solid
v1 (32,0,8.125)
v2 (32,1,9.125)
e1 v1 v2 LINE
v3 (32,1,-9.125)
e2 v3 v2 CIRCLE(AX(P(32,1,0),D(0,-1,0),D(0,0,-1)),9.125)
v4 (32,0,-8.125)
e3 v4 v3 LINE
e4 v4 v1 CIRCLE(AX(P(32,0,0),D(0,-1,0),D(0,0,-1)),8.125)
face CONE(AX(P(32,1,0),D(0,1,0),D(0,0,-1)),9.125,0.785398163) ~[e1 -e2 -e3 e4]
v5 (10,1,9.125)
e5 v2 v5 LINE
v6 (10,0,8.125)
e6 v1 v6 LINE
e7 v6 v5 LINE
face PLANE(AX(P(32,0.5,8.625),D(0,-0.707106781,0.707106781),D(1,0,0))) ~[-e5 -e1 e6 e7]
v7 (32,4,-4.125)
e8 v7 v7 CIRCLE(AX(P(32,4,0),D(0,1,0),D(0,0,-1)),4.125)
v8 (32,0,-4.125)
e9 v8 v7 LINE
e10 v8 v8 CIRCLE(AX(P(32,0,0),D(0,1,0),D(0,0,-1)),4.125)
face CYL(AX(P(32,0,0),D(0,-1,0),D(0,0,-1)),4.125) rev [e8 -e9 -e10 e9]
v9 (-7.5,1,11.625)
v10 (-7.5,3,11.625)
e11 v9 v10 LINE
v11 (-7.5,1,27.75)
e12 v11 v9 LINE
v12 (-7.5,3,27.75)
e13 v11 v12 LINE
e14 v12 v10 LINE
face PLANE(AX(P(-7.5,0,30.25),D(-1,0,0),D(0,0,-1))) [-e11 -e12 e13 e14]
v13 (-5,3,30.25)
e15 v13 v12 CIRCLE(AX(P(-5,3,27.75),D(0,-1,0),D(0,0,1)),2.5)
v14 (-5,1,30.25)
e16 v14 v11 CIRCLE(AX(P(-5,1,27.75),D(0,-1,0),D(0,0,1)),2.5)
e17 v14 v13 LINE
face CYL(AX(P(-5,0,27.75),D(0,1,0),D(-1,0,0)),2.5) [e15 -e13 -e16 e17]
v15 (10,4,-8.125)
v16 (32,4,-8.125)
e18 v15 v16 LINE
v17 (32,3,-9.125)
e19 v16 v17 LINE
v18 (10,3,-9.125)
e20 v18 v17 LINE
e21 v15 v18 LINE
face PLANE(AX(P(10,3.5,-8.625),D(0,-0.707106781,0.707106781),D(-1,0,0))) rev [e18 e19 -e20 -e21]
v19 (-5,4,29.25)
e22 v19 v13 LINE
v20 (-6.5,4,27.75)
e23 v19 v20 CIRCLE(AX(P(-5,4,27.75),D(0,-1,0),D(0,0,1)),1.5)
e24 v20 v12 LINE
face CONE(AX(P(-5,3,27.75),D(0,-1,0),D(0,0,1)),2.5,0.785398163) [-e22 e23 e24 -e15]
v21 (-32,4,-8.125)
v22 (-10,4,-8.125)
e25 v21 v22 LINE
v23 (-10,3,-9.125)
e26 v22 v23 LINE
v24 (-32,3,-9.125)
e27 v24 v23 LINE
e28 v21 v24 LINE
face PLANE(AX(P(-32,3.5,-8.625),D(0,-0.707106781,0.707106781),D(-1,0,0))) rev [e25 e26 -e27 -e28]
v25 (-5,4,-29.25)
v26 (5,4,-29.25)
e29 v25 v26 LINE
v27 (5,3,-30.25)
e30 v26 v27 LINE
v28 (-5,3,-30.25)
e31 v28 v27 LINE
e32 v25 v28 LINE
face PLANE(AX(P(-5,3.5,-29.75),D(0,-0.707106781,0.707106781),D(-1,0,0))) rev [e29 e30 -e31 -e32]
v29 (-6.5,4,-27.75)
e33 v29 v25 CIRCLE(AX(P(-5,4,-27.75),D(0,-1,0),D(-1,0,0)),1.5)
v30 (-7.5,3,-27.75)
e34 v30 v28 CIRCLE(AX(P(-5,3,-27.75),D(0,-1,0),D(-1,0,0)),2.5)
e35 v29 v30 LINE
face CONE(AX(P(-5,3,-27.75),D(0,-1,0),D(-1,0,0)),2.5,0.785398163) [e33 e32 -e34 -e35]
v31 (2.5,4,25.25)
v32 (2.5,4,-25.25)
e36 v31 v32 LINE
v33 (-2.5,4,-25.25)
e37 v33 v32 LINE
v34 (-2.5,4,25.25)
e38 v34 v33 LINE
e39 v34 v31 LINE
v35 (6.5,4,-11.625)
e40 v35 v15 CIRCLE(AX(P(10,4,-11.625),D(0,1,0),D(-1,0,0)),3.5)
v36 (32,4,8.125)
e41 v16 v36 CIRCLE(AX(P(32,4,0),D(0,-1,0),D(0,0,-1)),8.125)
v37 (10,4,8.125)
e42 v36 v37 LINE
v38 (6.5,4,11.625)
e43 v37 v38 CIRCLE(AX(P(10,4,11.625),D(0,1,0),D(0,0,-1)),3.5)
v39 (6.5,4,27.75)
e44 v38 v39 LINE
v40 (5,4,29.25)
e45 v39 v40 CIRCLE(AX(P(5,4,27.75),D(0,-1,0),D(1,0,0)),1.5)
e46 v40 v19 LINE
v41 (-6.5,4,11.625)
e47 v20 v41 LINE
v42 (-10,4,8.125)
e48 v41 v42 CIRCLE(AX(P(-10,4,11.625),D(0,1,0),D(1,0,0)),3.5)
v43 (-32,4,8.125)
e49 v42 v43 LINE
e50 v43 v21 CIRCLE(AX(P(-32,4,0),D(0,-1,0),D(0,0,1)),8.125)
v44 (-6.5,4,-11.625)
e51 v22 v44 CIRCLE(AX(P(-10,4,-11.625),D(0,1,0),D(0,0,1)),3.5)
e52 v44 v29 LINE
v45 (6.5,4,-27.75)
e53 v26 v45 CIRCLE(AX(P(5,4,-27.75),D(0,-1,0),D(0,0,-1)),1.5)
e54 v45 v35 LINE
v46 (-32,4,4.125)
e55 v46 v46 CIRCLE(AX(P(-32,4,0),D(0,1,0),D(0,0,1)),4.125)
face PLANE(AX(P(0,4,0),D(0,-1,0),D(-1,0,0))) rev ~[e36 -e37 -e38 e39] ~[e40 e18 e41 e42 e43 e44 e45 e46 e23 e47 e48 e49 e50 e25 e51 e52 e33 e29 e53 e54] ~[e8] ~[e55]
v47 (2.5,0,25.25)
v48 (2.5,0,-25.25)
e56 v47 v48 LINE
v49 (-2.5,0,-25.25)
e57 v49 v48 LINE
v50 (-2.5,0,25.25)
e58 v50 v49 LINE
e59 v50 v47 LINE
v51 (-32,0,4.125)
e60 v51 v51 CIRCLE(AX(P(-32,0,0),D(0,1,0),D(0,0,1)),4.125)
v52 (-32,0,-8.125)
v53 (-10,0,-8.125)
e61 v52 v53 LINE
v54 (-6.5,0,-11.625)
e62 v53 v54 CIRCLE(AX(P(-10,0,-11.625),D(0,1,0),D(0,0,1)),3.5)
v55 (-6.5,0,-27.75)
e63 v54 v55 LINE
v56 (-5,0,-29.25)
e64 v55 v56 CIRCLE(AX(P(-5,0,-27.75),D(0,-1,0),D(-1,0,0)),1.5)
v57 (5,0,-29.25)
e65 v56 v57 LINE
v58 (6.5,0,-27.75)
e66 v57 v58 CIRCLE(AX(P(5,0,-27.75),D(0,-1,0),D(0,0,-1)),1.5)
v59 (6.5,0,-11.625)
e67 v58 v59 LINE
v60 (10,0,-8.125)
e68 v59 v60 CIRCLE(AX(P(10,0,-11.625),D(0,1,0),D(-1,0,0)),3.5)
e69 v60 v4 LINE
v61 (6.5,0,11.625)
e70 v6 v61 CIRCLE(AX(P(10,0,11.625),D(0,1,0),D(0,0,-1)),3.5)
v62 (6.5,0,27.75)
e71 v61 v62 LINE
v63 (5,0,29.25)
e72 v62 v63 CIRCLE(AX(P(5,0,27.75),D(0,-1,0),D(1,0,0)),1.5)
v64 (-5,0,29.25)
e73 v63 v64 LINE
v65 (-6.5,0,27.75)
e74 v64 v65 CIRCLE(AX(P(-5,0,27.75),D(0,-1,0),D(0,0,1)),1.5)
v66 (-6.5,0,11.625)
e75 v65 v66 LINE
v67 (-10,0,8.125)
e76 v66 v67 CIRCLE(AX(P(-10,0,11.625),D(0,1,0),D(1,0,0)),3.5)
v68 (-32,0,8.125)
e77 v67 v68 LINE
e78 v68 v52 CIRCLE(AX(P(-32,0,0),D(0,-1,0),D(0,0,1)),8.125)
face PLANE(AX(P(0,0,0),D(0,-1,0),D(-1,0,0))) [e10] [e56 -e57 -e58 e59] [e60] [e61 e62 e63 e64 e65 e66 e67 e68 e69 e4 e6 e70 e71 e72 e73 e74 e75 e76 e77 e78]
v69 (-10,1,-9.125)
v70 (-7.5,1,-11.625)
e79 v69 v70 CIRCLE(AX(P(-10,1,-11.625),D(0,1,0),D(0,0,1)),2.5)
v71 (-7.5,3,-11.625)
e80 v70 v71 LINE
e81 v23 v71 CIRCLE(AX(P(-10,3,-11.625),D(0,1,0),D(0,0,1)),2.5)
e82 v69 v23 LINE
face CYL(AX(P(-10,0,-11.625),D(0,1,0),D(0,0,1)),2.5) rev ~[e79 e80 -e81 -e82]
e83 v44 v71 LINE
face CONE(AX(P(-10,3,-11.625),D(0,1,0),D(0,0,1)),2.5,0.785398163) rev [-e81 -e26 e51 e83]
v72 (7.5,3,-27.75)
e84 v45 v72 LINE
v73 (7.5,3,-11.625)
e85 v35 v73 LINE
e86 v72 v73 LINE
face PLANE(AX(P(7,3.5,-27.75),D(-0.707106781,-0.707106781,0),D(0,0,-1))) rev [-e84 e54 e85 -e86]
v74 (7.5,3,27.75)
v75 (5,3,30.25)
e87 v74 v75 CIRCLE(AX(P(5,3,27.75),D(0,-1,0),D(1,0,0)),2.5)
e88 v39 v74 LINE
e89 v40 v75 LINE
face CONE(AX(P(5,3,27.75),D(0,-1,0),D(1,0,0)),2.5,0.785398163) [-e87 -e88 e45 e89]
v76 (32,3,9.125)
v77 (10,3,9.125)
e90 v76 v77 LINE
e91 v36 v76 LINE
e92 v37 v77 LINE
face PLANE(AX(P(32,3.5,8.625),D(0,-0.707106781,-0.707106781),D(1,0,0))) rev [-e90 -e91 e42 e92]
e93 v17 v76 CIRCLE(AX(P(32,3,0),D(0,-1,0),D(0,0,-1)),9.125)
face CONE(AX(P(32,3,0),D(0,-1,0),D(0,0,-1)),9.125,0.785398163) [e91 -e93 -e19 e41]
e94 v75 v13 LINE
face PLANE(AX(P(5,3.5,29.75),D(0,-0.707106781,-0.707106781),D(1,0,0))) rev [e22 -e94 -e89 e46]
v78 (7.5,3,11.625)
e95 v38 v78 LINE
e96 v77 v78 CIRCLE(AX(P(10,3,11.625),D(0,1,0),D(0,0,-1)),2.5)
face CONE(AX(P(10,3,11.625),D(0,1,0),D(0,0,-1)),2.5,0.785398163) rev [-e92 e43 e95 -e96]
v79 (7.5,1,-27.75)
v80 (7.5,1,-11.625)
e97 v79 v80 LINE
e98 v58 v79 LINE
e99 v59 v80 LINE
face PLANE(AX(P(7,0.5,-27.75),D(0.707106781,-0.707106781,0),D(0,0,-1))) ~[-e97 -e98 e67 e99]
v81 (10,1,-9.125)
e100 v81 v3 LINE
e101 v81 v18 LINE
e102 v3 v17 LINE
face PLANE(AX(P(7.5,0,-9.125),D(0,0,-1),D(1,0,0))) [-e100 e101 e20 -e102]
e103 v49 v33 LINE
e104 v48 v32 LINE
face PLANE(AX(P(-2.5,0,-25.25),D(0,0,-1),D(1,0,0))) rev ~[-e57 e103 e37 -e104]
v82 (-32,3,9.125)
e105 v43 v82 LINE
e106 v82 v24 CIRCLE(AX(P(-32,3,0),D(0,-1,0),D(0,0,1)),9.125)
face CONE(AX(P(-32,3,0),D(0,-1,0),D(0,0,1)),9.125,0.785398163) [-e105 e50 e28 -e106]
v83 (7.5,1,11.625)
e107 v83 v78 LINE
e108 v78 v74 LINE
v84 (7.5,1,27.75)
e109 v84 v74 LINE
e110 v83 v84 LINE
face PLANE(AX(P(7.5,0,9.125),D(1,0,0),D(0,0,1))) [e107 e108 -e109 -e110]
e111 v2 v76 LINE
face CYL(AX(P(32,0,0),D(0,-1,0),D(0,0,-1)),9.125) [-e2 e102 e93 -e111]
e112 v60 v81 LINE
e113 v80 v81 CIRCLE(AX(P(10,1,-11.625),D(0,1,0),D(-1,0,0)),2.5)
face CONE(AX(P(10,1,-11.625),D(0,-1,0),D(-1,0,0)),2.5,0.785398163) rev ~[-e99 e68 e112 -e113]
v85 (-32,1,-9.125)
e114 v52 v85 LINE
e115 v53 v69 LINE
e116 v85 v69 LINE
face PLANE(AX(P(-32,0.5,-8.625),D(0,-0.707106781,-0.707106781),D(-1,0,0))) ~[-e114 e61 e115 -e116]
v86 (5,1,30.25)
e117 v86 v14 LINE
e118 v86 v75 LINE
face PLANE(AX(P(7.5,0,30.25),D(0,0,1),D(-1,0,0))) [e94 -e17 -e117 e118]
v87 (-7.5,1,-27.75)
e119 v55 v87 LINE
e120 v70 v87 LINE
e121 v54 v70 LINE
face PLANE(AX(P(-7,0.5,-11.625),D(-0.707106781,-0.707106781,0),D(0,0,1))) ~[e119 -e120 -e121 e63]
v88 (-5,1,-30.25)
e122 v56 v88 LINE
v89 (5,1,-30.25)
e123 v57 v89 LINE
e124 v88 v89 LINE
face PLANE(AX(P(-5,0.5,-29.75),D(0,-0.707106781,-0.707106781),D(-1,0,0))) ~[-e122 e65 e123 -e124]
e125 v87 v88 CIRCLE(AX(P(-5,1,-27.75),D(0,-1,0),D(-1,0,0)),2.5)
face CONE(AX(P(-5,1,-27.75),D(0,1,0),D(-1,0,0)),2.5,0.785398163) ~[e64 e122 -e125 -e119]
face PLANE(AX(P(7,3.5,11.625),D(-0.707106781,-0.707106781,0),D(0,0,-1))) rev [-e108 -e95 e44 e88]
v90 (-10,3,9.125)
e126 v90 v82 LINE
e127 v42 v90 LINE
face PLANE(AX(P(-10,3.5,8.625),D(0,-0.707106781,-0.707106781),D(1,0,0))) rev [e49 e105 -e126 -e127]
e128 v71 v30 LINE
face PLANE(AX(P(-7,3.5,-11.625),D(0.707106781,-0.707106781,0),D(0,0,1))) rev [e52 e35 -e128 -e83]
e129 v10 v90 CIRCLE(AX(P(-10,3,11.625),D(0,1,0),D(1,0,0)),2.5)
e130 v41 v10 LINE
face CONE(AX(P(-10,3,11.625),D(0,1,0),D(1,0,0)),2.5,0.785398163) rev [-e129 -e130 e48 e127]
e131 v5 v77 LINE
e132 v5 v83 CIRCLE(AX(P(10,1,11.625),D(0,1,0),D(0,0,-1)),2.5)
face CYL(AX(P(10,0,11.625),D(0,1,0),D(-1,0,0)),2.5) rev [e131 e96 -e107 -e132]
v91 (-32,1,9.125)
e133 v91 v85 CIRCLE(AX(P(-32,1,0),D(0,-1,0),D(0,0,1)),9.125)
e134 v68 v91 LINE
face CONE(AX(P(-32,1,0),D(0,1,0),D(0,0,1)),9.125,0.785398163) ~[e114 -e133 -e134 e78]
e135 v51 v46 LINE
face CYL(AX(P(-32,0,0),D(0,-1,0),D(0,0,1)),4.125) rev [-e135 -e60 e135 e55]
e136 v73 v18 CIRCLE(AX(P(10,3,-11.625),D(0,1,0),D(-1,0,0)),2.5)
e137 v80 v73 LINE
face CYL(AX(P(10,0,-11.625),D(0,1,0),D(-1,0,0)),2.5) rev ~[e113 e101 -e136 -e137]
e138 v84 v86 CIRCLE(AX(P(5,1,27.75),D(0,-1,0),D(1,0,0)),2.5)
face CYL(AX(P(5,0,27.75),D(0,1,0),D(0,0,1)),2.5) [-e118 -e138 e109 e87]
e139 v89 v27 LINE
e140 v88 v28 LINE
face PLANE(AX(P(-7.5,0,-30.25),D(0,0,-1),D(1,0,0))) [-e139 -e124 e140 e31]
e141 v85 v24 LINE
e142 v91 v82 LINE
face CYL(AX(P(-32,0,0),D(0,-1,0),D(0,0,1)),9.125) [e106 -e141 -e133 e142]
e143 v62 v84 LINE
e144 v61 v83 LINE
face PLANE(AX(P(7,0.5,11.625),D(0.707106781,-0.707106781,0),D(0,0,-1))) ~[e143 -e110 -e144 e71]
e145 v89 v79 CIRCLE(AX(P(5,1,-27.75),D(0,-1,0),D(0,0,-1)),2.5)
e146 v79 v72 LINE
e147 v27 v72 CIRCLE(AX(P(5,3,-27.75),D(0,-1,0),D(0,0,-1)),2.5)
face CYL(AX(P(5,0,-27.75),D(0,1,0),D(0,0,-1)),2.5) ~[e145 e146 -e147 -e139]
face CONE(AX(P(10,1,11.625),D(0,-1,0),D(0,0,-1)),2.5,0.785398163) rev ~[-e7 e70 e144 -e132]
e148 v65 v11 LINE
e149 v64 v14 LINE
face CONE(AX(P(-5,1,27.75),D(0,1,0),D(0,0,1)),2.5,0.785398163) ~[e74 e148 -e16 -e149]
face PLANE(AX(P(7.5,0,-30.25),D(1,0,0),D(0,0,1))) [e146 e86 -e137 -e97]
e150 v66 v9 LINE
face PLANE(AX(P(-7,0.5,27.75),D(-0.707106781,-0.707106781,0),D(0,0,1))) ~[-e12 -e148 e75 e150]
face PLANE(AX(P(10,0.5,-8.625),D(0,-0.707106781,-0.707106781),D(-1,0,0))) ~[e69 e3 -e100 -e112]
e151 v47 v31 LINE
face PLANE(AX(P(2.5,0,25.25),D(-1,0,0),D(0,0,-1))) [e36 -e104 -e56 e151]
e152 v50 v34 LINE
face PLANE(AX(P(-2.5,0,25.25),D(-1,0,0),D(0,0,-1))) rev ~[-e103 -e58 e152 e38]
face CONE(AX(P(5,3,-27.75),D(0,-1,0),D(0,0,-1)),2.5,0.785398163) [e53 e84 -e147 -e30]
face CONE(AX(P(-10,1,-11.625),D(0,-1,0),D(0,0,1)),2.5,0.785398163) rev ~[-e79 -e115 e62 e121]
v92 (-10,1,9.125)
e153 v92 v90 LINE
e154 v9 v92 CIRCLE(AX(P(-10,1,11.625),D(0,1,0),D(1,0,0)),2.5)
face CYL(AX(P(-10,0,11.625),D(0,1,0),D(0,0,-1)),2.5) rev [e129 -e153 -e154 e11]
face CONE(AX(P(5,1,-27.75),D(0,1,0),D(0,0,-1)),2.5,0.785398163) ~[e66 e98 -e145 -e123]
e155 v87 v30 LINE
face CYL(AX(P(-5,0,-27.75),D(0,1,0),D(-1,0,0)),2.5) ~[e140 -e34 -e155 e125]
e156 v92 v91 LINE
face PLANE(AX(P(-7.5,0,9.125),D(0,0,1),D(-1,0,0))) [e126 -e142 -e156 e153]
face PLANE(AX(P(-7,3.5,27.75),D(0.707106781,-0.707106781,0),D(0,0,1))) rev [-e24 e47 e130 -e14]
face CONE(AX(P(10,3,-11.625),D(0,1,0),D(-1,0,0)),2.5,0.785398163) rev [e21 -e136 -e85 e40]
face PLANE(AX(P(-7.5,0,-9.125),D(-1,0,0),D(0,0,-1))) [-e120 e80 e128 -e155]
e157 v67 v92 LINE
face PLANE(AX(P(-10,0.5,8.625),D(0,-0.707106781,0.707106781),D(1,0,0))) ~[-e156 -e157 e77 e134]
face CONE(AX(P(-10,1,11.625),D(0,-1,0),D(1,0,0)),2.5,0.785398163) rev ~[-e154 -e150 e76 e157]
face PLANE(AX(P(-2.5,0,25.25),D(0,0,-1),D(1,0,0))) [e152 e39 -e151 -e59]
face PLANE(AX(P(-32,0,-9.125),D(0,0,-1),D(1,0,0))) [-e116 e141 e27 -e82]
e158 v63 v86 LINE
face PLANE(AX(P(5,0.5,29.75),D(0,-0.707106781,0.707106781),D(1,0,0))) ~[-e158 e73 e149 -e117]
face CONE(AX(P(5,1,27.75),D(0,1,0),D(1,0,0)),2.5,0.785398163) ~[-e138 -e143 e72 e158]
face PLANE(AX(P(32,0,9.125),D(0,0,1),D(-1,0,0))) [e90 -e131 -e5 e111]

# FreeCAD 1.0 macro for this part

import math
import FreeCAD as App
import Part
import Sketcher

V = App.Vector


def edges_at(feature, points):
    """Names of the edges that pass closest to the given points."""
    edges = feature.Shape.Edges
    near = lambda p: min(range(len(edges)), key=lambda i: edges[i].distToShape(Part.Vertex(*p))[0])
    return sorted({f"Edge{near(p) + 1}" for p in points})


def add_polygon(sketch, points):
    """Adds a closed chain of lines whose ends are joined by coincident constraints."""
    first, n = sketch.GeometryCount, len(points)
    for a, b in zip(points, points[1:] + points[:1]):
        sketch.addGeometry(Part.LineSegment(App.Vector(*a, 0), App.Vector(*b, 0)), False)
    for i in range(n):
        sketch.addConstraint(Sketcher.Constraint("Coincident", first + i, 2, first + (i + 1) % n, 1))

doc = App.newDocument("Part")
body = doc.addObject("PartDesign::Body", "Body")

sketch1 = body.newObject("Sketcher::SketchObject", "Sketch")
sketch1.AttachmentSupport = (doc.getObject("XZ_Plane"), [""])
sketch1.MapMode = "FlatFace"
sketch1.addGeometry(Part.LineSegment(V(-7.5, -9.1, 0), V(-32, -9.1, 0)), False)
sketch1.addGeometry(Part.ArcOfCircle(Part.Circle(V(-32, 0, 0), V(0, 0, 1), 9.1), math.radians(90), math.radians(270)), False)
sketch1.addGeometry(Part.LineSegment(V(-32, 9.1, 0), V(-7.5, 9.1, 0)), False)
sketch1.addGeometry(Part.LineSegment(V(-7.5, 9.1, 0), V(-7.5, 30.2, 0)), False)
sketch1.addGeometry(Part.LineSegment(V(-7.5, 30.2, 0), V(7.5, 30.2, 0)), False)
sketch1.addGeometry(Part.LineSegment(V(7.5, 30.2, 0), V(7.5, 9.1, 0)), False)
sketch1.addGeometry(Part.LineSegment(V(7.5, 9.1, 0), V(32, 9.1, 0)), False)
sketch1.addGeometry(Part.ArcOfCircle(Part.Circle(V(32, 0, 0), V(0, 0, 1), 9.1), math.radians(-90), math.radians(90)), False)
sketch1.addGeometry(Part.LineSegment(V(32, -9.1, 0), V(7.5, -9.1, 0)), False)
sketch1.addGeometry(Part.LineSegment(V(7.5, -9.1, 0), V(7.5, -30.2, 0)), False)
sketch1.addGeometry(Part.LineSegment(V(7.5, -30.2, 0), V(-7.5, -30.2, 0)), False)
sketch1.addGeometry(Part.LineSegment(V(-7.5, -30.2, 0), V(-7.5, -9.1, 0)), False)
sketch1.addGeometry(Part.Circle(V(32, 0, 0), V(0, 0, 1), 4.1), False)
add_polygon(sketch1, [(-2.5, 25.2), (-2.5, -25.2), (2.5, -25.2), (2.5, 25.2)])
sketch1.addGeometry(Part.Circle(V(-32, 0, 0), V(0, 0, 1), 4.1), False)
sketch1.addConstraint([
    Sketcher.Constraint("Tangent", 0, 2, 1, 2),
    Sketcher.Constraint("Tangent", 1, 1, 2, 1),
    Sketcher.Constraint("Coincident", 2, 2, 3, 1),
    Sketcher.Constraint("Coincident", 3, 2, 4, 1),
    Sketcher.Constraint("Coincident", 4, 2, 5, 1),
    Sketcher.Constraint("Coincident", 5, 2, 6, 1),
    Sketcher.Constraint("Tangent", 6, 2, 7, 2),
    Sketcher.Constraint("Tangent", 7, 1, 8, 1),
    Sketcher.Constraint("Coincident", 8, 2, 9, 1),
    Sketcher.Constraint("Coincident", 9, 2, 10, 1),
    Sketcher.Constraint("Coincident", 10, 2, 11, 1),
    Sketcher.Constraint("Coincident", 11, 2, 0, 1),
    Sketcher.Constraint("Horizontal", 0),
    Sketcher.Constraint("Horizontal", 2),
    Sketcher.Constraint("Vertical", 3),
    Sketcher.Constraint("Horizontal", 4),
    Sketcher.Constraint("Vertical", 5),
    Sketcher.Constraint("Horizontal", 6),
    Sketcher.Constraint("Horizontal", 8),
    Sketcher.Constraint("Vertical", 9),
    Sketcher.Constraint("Horizontal", 10),
    Sketcher.Constraint("Vertical", 11),
    Sketcher.Constraint("Vertical", 13),
    Sketcher.Constraint("Horizontal", 14),
    Sketcher.Constraint("Vertical", 15),
    Sketcher.Constraint("Horizontal", 16),
    Sketcher.Constraint("Coincident", 12, 3, 7, 3),
    Sketcher.Constraint("Coincident", 17, 3, 1, 3),
    Sketcher.Constraint("Equal", 1, 7),
    Sketcher.Constraint("Equal", 12, 17),
    Sketcher.Constraint("Symmetric", 1, 3, 7, 3, -1, 1),
    Sketcher.Constraint("Symmetric", 3, 2, 9, 2, -1, 1),
    Sketcher.Constraint("Symmetric", 13, 2, 15, 2, -1, 1),
    Sketcher.Constraint("Symmetric", 2, 2, 5, 2, -2),
    Sketcher.Constraint("Vertical", 3, 2, 10, 2),
    Sketcher.Constraint("Diameter", 12, 8.25),
    Sketcher.Constraint("DistanceX", 4, 1, 4, 2, 15.0),
    Sketcher.Constraint("DistanceX", 14, 1, 14, 2, 5.0),
    Sketcher.Constraint("DistanceX", 0, 2, 0, 1, 24.5),
    Sketcher.Constraint("DistanceY", 13, 2, 13, 1, 50.5),
    Sketcher.Constraint("Radius", 1, 9.125),
    Sketcher.Constraint("DistanceY", 10, 2, 13, 2, 5.0),
])
pad1 = body.newObject("PartDesign::Pad", "Pad")
pad1.Profile = sketch1
pad1.Length = 4
pad1.Reversed = True
doc.recompute()

fillet = body.newObject("PartDesign::Fillet", "Fillet")
fillet.Base = (pad1, edges_at(pad1, [
    (-7.5, 2, -9.125),
    (-7.5, 2, -30.25),
    (7.5, 2, -30.25),
    (7.5, 2, -9.125),
    (7.5, 2, 9.125),
    (7.5, 2, 30.25),
    (-7.5, 2, 30.25),
    (-7.5, 2, 9.125),
]))
fillet.Radius = 2.5
doc.recompute()

chamfer = body.newObject("PartDesign::Chamfer", "Chamfer")
chamfer.Base = (fillet, edges_at(fillet, [
    (21, 0, -9.125),
    (41.125, 0, 0),
    (-21, 0, 9.125),
    (-41.125, 0, 0),
    (41.125, 4, 0),
    (21, 4, -9.125),
    (-41.125, 4, 0),
    (-7.5, 0, 19.688),
    (-7.5, 4, 19.688),
    (0, 0, 30.25),
    (0, 4, 30.25),
    (-21, 0, -9.125),
    (-7.5, 0, -19.688),
    (0, 0, -30.25),
    (7.5, 0, -19.688),
    (21, 0, 9.125),
    (7.5, 0, 19.688),
    (-6.768, 0, -29.518),
    (6.768, 0, -29.518),
    (6.768, 0, 29.518),
    (-6.768, 0, 29.518),
    (7.5, 4, 19.688),
    (21, 4, 9.125),
    (7.5, 4, -19.688),
    (0, 4, -30.25),
    (-7.5, 4, -19.688),
    (-21, 4, -9.125),
    (-6.768, 4, -29.518),
    (6.768, 4, -29.518),
    (6.768, 4, 29.518),
    (-6.768, 4, 29.518),
    (-8.232, 0, 9.857),
    (-8.232, 4, 9.857),
    (8.232, 0, 9.857),
    (8.232, 4, 9.857),
    (8.232, 0, -9.857),
    (8.232, 4, -9.857),
    (-8.232, 0, -9.857),
    (-8.232, 4, -9.857),
    (-21, 4, 9.125),
]))
chamfer.Size = 1

doc.recompute()
